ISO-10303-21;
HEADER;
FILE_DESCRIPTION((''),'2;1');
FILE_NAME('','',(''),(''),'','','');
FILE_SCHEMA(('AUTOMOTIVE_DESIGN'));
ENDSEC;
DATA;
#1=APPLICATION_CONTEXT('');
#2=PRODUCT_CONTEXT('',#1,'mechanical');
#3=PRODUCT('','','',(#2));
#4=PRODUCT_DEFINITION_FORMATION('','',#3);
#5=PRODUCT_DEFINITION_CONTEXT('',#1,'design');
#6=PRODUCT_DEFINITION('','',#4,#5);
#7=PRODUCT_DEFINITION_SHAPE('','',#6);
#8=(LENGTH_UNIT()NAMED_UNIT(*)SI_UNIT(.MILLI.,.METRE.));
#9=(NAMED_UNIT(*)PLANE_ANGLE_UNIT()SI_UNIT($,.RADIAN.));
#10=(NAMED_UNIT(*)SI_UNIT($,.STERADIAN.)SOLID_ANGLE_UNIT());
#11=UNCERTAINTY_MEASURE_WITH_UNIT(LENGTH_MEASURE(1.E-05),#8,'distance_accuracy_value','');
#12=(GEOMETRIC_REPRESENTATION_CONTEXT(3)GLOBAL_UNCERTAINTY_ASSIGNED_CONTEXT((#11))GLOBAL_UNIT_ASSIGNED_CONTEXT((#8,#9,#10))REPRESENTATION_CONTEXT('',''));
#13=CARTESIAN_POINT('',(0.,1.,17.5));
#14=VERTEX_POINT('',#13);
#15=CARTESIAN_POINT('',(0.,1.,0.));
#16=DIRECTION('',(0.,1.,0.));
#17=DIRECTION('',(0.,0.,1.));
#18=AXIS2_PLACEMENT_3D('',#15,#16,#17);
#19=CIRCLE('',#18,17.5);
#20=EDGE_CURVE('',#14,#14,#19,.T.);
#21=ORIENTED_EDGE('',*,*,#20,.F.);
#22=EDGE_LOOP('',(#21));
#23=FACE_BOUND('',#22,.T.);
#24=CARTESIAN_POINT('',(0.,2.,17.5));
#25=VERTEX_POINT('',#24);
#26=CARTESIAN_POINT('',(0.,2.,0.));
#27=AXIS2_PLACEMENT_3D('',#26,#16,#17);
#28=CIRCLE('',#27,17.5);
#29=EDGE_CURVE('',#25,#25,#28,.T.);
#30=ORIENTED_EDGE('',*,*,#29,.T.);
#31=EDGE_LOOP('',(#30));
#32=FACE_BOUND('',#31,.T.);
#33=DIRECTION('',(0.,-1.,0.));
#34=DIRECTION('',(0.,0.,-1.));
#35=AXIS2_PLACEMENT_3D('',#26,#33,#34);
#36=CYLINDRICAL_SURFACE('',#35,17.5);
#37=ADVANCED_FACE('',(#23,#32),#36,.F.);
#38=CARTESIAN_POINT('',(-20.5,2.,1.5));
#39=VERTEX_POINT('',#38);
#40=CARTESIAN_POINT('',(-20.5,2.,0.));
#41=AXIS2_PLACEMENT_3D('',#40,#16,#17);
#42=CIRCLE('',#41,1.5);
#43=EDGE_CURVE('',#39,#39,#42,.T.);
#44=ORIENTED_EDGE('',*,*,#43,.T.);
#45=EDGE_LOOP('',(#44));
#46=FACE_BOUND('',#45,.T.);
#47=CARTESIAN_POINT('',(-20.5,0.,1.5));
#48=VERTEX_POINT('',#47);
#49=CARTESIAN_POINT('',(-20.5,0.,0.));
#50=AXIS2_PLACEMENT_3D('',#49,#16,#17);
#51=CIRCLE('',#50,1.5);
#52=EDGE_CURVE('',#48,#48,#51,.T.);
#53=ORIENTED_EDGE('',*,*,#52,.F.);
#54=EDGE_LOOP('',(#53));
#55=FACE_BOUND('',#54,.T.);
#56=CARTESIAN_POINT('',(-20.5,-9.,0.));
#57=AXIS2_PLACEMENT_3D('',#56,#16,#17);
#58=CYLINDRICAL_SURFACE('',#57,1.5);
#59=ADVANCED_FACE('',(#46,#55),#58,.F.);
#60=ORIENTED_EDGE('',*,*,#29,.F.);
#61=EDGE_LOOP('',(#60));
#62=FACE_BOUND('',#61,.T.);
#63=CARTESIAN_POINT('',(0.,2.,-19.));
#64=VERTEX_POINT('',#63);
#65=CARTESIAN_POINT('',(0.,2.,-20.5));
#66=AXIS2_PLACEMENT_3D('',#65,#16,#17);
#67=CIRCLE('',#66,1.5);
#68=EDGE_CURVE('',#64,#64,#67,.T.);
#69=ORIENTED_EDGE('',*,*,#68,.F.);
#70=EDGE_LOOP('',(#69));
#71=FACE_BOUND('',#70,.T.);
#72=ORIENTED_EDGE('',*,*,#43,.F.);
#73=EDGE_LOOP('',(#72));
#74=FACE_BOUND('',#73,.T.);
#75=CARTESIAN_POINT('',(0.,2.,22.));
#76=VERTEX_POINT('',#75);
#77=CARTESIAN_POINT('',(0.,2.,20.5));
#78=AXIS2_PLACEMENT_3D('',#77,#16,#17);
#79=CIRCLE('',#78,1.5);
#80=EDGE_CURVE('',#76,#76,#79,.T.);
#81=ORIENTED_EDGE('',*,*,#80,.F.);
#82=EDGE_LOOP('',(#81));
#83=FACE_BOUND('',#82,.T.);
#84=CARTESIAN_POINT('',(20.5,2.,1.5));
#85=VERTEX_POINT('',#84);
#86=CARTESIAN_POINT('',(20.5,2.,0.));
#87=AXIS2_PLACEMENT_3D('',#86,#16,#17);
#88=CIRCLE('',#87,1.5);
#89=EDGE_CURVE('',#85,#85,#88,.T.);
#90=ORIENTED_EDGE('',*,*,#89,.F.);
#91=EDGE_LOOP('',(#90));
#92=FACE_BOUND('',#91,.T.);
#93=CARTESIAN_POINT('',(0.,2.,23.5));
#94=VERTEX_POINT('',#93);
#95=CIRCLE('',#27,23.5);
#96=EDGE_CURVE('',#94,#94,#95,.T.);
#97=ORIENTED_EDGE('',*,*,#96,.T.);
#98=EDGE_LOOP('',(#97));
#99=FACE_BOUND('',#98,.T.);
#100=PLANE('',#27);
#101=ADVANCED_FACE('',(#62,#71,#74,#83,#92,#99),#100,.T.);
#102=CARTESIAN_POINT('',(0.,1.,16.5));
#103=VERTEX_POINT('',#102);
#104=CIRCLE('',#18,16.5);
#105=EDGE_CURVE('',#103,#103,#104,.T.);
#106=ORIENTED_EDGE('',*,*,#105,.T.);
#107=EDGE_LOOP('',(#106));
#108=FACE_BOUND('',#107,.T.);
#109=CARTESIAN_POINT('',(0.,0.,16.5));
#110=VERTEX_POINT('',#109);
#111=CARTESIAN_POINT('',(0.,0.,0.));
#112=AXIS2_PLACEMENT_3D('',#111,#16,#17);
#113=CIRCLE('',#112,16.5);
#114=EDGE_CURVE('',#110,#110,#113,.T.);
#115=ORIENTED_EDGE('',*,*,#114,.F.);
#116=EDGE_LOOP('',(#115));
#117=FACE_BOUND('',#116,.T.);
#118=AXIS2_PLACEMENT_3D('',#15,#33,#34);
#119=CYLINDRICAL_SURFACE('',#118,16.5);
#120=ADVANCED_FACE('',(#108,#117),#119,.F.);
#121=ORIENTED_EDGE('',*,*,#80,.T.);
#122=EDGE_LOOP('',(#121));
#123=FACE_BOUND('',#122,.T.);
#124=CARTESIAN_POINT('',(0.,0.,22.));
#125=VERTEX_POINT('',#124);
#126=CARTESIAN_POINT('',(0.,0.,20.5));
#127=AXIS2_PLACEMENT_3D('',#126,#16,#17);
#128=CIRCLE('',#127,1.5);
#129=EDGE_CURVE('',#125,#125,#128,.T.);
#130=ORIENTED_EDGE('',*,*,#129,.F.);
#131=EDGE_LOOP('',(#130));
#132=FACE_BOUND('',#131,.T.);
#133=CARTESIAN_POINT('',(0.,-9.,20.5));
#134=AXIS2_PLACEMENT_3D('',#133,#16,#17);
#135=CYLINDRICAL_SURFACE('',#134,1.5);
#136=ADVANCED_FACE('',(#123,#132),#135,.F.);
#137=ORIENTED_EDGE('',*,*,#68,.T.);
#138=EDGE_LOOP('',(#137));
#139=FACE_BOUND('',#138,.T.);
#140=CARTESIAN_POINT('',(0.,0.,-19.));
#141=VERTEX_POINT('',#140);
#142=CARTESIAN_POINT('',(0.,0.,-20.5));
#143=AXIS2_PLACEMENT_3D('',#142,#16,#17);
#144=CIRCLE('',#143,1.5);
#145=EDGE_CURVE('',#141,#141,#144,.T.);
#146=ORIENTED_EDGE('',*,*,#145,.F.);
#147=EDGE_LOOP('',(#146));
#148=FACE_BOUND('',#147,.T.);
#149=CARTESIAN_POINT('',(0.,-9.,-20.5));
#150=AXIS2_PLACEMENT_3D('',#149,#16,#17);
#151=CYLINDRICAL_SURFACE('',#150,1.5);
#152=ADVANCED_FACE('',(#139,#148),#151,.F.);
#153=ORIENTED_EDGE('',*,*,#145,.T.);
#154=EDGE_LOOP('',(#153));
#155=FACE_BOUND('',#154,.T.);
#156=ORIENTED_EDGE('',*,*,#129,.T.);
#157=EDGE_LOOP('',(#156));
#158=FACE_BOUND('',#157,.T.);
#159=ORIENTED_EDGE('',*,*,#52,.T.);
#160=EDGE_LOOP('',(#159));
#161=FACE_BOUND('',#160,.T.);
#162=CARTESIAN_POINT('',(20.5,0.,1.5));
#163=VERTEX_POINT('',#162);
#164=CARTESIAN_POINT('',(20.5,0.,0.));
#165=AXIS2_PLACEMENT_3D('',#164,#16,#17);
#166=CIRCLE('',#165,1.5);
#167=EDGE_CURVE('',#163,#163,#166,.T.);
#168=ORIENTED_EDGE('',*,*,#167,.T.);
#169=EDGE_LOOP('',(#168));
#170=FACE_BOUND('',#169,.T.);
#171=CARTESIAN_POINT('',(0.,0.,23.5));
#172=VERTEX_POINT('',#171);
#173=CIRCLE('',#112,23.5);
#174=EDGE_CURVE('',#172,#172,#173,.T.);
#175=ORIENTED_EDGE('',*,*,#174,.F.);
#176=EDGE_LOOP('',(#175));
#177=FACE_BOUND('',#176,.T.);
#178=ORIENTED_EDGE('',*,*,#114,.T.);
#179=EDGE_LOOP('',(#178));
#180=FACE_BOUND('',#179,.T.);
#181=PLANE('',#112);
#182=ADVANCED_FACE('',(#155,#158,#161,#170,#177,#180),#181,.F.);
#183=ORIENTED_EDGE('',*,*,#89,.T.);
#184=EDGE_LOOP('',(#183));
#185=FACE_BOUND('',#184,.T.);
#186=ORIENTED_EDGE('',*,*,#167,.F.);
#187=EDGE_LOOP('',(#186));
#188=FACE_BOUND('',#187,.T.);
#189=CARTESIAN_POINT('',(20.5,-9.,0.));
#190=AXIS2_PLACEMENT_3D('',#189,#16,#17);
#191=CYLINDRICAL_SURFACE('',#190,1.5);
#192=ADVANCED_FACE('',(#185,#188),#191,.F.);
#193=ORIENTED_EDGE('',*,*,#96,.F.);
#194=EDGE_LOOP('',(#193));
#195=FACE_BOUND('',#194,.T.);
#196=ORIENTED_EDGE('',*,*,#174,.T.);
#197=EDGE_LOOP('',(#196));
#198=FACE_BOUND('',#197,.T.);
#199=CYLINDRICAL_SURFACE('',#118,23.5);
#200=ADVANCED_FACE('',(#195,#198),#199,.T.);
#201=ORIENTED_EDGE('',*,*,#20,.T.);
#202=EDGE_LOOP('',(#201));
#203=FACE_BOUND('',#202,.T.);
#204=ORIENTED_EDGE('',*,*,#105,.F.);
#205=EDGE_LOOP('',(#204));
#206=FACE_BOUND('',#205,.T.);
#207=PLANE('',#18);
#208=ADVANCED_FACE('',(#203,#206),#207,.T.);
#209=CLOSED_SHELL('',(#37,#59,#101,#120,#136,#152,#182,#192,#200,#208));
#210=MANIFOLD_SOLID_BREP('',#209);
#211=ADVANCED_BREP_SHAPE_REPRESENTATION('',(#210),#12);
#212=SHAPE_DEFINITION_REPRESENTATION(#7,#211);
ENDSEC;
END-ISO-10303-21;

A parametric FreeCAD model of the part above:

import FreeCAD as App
import Part
import Sketcher

V = App.Vector
Q = App.Units.Quantity

doc = App.newDocument("Part")
params = doc.addObject("Spreadsheet::Sheet", "Params")
for row, (alias, value) in enumerate([
    ("sketch1_diameter", "47 mm"),
    ("sketch1_diameter2", "33 mm"),
    ("pad1_length", "1 mm"),
    ("sketch2_diameter", "47 mm"),
    ("sketch2_diameter2", "35 mm"),
    ("pad2_length", "1 mm"),
    ("sketch3_diameter", "3 mm"),
    ("pocket1_length", "11 mm"),
], start=1):
    params.set(f"A{row}", alias)
    params.set(f"B{row}", "=" + value)
    params.setAlias(f"B{row}", alias)

body = doc.addObject("PartDesign::Body", "Body")

# Sketch on XZ plane
sketch1 = body.newObject("Sketcher::SketchObject", "Sketch")
sketch1.AttachmentSupport = (doc.getObject("XZ_Plane"), [""])
sketch1.MapMode = "FlatFace"
sketch1.addGeometry([
    Part.Circle(V(0, 0, 0), V(0, 0, 1), 24),
    Part.Circle(V(0, 0, 0), V(0, 0, 1), 16),
], False)
sketch1.addConstraint([
    Sketcher.Constraint("Coincident", 0, 3, -1, 1),
    Sketcher.Constraint("Coincident", 1, 3, -1, 1),
    Sketcher.Constraint("Diameter", 0, Q("47 mm")),
    Sketcher.Constraint("Diameter", 1, Q("33 mm")),
])
sketch1.setExpression("Constraints[2]", "Params.sketch1_diameter")
sketch1.setExpression("Constraints[3]", "Params.sketch1_diameter2")
pad1 = body.newObject("PartDesign::Pad", "Pad")
pad1.Profile = sketch1
pad1.setExpression("Length", "Params.pad1_length")
pad1.Reversed = True

# Sketch on XZ plane
sketch2 = body.newObject("Sketcher::SketchObject", "Sketch001")
sketch2.AttachmentSupport = (doc.getObject("XZ_Plane"), [""])
sketch2.MapMode = "FlatFace"
sketch2.AttachmentOffset = App.Placement(V(0, 0, -1), App.Rotation())
sketch2.addGeometry([
    Part.Circle(V(0, 0, 0), V(0, 0, 1), 24),
    Part.Circle(V(0, 0, 0), V(0, 0, 1), 18),
], False)
sketch2.addConstraint([
    Sketcher.Constraint("Coincident", 0, 3, -1, 1),
    Sketcher.Constraint("Coincident", 1, 3, -1, 1),
    Sketcher.Constraint("Diameter", 0, Q("47 mm")),
    Sketcher.Constraint("Diameter", 1, Q("35 mm")),
])
sketch2.setExpression("Constraints[2]", "Params.sketch2_diameter")
sketch2.setExpression("Constraints[3]", "Params.sketch2_diameter2")
pad2 = body.newObject("PartDesign::Pad", "Pad001")
pad2.Profile = sketch2
pad2.setExpression("Length", "Params.pad2_length")
pad2.Reversed = True

# Sketch on XZ plane
sketch3 = body.newObject("Sketcher::SketchObject", "Sketch002")
sketch3.AttachmentSupport = (doc.getObject("XZ_Plane"), [""])
sketch3.MapMode = "FlatFace"
sketch3.AttachmentOffset = App.Placement(V(0, 0, -2), App.Rotation())
sketch3.addGeometry([
    Part.Circle(V(0, -20.5, 0), V(0, 0, 1), 1.5),
    Part.Circle(V(20.5, 0, 0), V(0, 0, 1), 1.5),
    Part.Circle(V(0, 20.5, 0), V(0, 0, 1), 1.5),
    Part.Circle(V(-20.5, 0, 0), V(0, 0, 1), 1.5),
], False)
sketch3.addConstraint([
    Sketcher.Constraint("Equal", 0, 1),
    Sketcher.Constraint("Equal", 1, 2),
    Sketcher.Constraint("Equal", 2, 3),
    Sketcher.Constraint("Symmetric", 0, 3, 2, 3, -1, 1),
    Sketcher.Constraint("Symmetric", 1, 3, 3, 3, -1, 1),
    Sketcher.Constraint("PointOnObject", 0, 3, -2),
    Sketcher.Constraint("PointOnObject", 1, 3, -1),
    Sketcher.Constraint("Diameter", 0, Q("3 mm")),
    Sketcher.Constraint("DistanceY", 0, 3, 2, 3, Q("41 mm")),
    Sketcher.Constraint("DistanceX", 3, 3, 1, 3, Q("41 mm")),
])
sketch3.setExpression("Constraints[7]", "Params.sketch3_diameter")
pocket1 = body.newObject("PartDesign::Pocket", "Pocket")
pocket1.Profile = sketch3
pocket1.setExpression("Length", "Params.pocket1_length")
pocket1.Reversed = True

doc.recompute()
